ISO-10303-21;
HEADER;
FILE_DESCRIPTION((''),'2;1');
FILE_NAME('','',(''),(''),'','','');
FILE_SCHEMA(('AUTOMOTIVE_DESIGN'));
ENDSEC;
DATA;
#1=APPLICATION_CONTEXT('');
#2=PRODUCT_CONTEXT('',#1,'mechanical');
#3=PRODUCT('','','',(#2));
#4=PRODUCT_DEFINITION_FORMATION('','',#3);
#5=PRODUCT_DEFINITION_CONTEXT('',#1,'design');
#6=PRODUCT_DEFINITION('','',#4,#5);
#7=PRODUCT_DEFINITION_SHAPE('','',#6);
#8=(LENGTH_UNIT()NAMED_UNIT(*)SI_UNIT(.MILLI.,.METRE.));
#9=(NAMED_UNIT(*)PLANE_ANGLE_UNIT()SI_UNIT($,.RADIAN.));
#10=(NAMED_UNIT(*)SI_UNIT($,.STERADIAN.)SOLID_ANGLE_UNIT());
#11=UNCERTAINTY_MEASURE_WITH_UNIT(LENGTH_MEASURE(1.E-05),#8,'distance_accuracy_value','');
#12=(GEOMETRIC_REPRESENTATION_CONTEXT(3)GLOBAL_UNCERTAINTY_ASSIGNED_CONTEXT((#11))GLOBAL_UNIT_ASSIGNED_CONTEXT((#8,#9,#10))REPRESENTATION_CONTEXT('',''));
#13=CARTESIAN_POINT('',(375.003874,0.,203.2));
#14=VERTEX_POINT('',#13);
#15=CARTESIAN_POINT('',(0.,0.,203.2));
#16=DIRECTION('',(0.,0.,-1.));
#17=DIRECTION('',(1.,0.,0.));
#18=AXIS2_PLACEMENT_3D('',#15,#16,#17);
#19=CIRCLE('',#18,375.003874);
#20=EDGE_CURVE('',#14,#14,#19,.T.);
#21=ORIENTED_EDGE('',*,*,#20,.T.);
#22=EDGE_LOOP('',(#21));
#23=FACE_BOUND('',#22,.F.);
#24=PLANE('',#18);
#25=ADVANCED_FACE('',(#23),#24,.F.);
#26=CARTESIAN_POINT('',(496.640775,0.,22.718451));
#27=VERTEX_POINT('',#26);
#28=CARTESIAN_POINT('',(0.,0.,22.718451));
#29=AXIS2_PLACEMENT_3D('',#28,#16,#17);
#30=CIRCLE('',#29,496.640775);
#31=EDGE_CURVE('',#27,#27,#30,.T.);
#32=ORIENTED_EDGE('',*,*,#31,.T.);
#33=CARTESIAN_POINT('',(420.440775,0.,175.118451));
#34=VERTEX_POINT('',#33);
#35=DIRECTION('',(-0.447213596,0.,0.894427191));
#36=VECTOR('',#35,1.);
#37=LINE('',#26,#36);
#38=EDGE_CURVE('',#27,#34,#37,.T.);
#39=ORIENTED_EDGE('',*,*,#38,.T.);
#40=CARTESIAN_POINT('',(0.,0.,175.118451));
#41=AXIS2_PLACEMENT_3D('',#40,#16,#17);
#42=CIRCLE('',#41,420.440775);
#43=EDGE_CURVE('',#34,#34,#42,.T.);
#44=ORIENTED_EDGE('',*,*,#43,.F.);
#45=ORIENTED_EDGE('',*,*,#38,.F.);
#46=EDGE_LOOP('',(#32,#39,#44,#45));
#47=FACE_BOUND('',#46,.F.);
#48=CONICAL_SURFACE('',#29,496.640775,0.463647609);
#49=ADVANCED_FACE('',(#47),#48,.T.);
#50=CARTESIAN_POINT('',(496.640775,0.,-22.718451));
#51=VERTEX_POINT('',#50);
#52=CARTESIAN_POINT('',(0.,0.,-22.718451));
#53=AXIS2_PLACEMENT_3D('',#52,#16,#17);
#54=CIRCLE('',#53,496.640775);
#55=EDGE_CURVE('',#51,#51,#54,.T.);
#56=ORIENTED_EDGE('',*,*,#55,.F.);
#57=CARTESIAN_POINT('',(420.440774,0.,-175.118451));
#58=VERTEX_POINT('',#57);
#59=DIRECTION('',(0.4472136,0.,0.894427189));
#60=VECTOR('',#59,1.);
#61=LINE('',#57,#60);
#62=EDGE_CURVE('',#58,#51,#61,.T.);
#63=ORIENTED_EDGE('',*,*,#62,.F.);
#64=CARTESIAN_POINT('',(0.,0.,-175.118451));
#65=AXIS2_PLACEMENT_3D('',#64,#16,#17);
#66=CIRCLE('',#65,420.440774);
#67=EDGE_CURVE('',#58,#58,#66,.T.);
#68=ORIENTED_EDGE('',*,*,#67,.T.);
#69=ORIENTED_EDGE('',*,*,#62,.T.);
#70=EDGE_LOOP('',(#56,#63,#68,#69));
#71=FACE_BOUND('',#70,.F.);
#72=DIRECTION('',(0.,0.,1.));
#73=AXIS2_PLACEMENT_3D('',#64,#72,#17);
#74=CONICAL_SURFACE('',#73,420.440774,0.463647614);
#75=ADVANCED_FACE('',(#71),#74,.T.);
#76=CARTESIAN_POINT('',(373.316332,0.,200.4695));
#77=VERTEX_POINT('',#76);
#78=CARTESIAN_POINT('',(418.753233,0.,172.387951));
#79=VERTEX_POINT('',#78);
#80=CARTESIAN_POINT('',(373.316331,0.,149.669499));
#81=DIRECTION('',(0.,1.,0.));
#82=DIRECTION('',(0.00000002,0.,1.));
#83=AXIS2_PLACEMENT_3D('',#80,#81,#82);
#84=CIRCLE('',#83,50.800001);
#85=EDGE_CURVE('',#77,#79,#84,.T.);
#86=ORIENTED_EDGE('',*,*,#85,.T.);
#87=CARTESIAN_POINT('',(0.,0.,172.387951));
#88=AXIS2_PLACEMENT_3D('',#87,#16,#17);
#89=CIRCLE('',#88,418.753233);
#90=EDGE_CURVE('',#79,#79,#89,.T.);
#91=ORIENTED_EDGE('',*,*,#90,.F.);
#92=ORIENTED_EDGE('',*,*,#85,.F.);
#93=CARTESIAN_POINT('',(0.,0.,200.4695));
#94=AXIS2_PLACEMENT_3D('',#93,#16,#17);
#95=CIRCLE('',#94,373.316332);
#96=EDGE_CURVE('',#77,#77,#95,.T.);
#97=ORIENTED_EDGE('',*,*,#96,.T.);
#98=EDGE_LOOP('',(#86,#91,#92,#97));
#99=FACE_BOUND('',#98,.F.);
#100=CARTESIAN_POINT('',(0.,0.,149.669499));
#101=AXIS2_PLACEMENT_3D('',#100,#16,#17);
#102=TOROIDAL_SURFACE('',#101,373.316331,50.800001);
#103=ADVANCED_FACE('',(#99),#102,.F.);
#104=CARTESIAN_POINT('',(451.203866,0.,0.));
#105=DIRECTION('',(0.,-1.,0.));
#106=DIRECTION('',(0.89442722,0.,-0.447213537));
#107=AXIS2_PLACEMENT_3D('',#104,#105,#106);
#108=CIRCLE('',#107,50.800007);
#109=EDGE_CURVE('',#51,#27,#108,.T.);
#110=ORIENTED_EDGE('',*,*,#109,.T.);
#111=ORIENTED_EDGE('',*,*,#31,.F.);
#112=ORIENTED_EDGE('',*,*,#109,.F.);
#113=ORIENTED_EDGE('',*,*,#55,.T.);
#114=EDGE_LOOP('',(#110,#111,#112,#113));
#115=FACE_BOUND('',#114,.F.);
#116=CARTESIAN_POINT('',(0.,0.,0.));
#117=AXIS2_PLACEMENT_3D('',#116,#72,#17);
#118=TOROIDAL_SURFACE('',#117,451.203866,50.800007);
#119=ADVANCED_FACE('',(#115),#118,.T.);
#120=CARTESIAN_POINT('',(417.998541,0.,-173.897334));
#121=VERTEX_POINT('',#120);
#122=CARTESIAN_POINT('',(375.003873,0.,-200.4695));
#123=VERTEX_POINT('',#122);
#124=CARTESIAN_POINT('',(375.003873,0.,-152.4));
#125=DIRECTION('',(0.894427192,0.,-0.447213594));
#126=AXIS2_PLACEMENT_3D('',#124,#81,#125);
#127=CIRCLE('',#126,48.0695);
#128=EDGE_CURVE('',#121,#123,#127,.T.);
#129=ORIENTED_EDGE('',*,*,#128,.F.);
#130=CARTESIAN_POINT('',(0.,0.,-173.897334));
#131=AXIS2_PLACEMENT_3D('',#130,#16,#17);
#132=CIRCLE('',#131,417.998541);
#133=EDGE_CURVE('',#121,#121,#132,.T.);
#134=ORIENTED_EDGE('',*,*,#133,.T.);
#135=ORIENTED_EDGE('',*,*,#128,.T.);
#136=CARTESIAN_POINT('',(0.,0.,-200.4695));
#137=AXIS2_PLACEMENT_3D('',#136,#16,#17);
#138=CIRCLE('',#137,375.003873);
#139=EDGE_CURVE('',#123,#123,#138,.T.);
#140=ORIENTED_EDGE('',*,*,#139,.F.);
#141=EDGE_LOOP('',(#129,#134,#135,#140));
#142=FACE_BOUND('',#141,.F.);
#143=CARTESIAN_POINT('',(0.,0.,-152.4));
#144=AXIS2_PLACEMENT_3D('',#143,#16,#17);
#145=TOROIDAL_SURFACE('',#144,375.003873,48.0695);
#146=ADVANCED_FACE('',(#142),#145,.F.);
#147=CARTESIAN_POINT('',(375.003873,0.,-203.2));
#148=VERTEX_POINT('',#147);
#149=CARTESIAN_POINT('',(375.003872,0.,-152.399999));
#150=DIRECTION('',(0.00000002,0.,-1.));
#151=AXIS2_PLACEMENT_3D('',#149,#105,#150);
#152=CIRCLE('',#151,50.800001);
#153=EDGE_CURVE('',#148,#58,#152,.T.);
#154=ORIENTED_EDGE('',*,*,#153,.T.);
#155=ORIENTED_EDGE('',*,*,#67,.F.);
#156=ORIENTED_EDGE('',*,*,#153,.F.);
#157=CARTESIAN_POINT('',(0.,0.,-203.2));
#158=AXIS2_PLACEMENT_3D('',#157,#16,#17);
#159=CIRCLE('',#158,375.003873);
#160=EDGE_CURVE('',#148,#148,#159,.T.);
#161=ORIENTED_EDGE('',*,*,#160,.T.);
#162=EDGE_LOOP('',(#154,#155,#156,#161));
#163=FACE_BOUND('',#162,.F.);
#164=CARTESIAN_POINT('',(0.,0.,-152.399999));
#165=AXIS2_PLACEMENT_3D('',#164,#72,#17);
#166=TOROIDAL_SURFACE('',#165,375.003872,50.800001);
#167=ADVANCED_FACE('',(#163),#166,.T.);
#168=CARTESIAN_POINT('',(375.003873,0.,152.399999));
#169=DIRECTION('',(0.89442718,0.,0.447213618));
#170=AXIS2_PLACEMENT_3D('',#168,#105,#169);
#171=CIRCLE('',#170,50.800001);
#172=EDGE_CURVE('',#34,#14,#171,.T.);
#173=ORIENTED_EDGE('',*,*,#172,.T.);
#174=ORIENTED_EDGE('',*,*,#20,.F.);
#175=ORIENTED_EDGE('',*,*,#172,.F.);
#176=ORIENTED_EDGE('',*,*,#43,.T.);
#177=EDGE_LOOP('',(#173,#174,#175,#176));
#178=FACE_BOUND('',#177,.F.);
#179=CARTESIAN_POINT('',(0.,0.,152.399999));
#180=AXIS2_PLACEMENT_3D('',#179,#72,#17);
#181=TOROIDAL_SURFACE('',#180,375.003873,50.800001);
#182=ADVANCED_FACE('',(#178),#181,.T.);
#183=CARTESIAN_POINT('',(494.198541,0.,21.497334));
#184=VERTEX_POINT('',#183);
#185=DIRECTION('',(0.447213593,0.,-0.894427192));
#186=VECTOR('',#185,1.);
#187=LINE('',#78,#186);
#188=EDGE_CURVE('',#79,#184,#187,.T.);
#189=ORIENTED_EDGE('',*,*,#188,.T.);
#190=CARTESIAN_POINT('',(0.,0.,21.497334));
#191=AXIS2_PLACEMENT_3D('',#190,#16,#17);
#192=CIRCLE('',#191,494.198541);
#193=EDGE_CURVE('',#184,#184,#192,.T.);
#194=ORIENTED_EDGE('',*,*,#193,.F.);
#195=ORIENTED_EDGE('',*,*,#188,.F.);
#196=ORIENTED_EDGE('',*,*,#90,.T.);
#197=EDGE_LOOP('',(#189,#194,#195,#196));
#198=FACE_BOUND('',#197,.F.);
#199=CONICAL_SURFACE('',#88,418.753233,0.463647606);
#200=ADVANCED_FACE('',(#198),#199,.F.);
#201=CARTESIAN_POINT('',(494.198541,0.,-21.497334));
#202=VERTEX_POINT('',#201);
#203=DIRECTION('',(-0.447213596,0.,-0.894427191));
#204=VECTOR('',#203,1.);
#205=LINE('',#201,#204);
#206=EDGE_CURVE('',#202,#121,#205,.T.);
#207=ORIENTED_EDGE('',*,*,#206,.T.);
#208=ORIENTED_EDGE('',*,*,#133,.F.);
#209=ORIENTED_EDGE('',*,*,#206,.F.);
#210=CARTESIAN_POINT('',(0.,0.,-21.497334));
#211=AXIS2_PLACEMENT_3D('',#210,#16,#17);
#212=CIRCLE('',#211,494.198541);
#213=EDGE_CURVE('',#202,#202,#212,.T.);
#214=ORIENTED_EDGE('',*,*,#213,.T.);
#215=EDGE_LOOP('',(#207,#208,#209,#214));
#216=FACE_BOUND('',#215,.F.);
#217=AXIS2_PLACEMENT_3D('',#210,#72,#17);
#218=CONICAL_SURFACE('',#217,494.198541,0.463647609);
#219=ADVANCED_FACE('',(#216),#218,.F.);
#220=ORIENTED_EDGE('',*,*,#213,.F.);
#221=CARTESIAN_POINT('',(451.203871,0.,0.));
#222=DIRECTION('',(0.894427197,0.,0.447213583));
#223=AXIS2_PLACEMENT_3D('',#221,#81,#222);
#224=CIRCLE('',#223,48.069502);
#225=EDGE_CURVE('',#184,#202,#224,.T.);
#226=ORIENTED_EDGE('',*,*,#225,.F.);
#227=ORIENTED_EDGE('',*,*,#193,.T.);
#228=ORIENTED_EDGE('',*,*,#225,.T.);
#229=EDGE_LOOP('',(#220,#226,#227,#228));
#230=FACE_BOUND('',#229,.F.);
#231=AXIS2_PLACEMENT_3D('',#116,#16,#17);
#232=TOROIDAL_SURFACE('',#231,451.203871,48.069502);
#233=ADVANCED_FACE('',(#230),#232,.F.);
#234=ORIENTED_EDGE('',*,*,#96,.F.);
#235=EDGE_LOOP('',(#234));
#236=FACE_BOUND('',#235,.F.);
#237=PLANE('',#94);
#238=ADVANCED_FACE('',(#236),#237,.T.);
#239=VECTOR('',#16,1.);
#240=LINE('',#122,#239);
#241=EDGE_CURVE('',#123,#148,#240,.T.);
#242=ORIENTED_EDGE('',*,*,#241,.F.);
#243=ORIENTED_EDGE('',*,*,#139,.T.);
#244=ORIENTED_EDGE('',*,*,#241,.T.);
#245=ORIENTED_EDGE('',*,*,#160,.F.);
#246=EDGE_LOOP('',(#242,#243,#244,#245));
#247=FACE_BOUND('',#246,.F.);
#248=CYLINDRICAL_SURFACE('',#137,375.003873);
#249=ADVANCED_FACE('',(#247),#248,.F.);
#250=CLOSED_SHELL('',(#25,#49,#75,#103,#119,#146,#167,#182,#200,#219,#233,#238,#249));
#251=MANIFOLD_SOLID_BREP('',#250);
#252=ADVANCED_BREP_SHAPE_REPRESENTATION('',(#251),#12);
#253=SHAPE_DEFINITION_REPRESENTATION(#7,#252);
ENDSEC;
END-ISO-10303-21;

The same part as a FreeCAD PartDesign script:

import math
import FreeCAD as App
import Part
import Sketcher
from FreeCAD import Vector
Q = App.Units.Quantity

doc = App.newDocument("Part")
body = doc.addObject("PartDesign::Body", "Body")

# Sketch on XZ plane
sketch1 = body.newObject("Sketcher::SketchObject", "Sketch")
sketch1.AttachmentSupport = (doc.getObject("XZ_Plane"), [""])
sketch1.MapMode = "FlatFace"
sketch1.addGeometry([
    Part.LineSegment(Vector(496.6, 22.7, 0), Vector(420.4, 175.1, 0)),  # 0
    Part.ArcOfCircle(Part.Circle(Vector(375, 152.4, 0), Vector(0, 0, 1), 50.8), math.radians(27), math.radians(90)),  # 1
    Part.LineSegment(Vector(375, 203.2, 0), Vector(0, 203.2, 0)),  # 2
    Part.LineSegment(Vector(0, 203.2, 0), Vector(0, 200.5, 0)),  # 3
    Part.LineSegment(Vector(0, 200.5, 0), Vector(373.3, 200.5, 0)),  # 4
    Part.ArcOfCircle(Part.Circle(Vector(373.3, 149.7, 0), Vector(0, 0, 1), 50.8), math.radians(27), math.radians(90)),  # 5
    Part.LineSegment(Vector(418.8, 172.4, 0), Vector(494.2, 21.5, 0)),  # 6
    Part.ArcOfCircle(Part.Circle(Vector(451.2, 0, 0), Vector(0, 0, 1), 48.1), math.radians(-27), math.radians(27)),  # 7
    Part.LineSegment(Vector(494.2, -21.5, 0), Vector(418, -173.9, 0)),  # 8
    Part.ArcOfCircle(Part.Circle(Vector(375, -152.4, 0), Vector(0, 0, 1), 48.1), math.radians(-90), math.radians(-27)),  # 9
    Part.LineSegment(Vector(375, -200.5, 0), Vector(375, -203.2, 0)),  # 10
    Part.ArcOfCircle(Part.Circle(Vector(375, -152.4, 0), Vector(0, 0, 1), 50.8), math.radians(-90), math.radians(-27)),  # 11
    Part.LineSegment(Vector(420.4, -175.1, 0), Vector(496.6, -22.7, 0)),  # 12
    Part.ArcOfCircle(Part.Circle(Vector(451.2, 0, 0), Vector(0, 0, 1), 50.8), math.radians(-27), math.radians(27)),  # 13
], False)
sketch1.addConstraint([
    Sketcher.Constraint("Tangent", 0, 2, 1, 1),
    Sketcher.Constraint("Tangent", 1, 2, 2, 1),
    Sketcher.Constraint("Coincident", 2, 2, 3, 1),
    Sketcher.Constraint("Coincident", 3, 2, 4, 1),
    Sketcher.Constraint("Tangent", 4, 2, 5, 2),
    Sketcher.Constraint("Tangent", 5, 1, 6, 1),
    Sketcher.Constraint("Tangent", 6, 2, 7, 2),
    Sketcher.Constraint("Tangent", 7, 1, 8, 1),
    Sketcher.Constraint("Tangent", 8, 2, 9, 2),
    Sketcher.Constraint("Coincident", 9, 1, 10, 1),
    Sketcher.Constraint("Coincident", 10, 2, 11, 1),
    Sketcher.Constraint("Tangent", 11, 2, 12, 1),
    Sketcher.Constraint("Tangent", 12, 2, 13, 1),
    Sketcher.Constraint("Tangent", 13, 2, 0, 1),
    Sketcher.Constraint("Horizontal", 2),
    Sketcher.Constraint("Vertical", 3),
    Sketcher.Constraint("Horizontal", 4),
    Sketcher.Constraint("Vertical", 10),
    Sketcher.Constraint("Coincident", 11, 3, 9, 3),
    Sketcher.Constraint("Coincident", 13, 3, 7, 3),
    Sketcher.Constraint("Equal", 1, 5),
    Sketcher.Constraint("Equal", 7, 9),
    Sketcher.Constraint("Equal", 5, 11),
    Sketcher.Constraint("Symmetric", 1, 3, 9, 3, -1),
    Sketcher.Constraint("Symmetric", 6, 2, 7, 1, -1),
    Sketcher.Constraint("PointOnObject", 2, 2, -2),
    Sketcher.Constraint("Parallel", 0, 6),
    Sketcher.Constraint("Vertical", 1, 2, 9, 1),
    Sketcher.Constraint("Equal", 3, 10),
    Sketcher.Constraint("Radius", 1, Q("2.0000001 in")),
    Sketcher.Constraint("DistanceY", -1, 1, 1, 3, Q("5.9999999 in")),
    Sketcher.Constraint("DistanceX", 1, 3, 7, 3, Q("2.9999999 in")),
    Sketcher.Constraint("Radius", 7, Q("1.8925001 in")),
    Sketcher.Constraint("DistanceX", 4, 1, 4, 2, Q("373.316332 mm")),
])
revolution = body.newObject("PartDesign::Revolution", "Revolution")
revolution.Profile = sketch1
revolution.ReferenceAxis = (sketch1, ["V_Axis"])
revolution.Angle = 360

doc.recompute()
